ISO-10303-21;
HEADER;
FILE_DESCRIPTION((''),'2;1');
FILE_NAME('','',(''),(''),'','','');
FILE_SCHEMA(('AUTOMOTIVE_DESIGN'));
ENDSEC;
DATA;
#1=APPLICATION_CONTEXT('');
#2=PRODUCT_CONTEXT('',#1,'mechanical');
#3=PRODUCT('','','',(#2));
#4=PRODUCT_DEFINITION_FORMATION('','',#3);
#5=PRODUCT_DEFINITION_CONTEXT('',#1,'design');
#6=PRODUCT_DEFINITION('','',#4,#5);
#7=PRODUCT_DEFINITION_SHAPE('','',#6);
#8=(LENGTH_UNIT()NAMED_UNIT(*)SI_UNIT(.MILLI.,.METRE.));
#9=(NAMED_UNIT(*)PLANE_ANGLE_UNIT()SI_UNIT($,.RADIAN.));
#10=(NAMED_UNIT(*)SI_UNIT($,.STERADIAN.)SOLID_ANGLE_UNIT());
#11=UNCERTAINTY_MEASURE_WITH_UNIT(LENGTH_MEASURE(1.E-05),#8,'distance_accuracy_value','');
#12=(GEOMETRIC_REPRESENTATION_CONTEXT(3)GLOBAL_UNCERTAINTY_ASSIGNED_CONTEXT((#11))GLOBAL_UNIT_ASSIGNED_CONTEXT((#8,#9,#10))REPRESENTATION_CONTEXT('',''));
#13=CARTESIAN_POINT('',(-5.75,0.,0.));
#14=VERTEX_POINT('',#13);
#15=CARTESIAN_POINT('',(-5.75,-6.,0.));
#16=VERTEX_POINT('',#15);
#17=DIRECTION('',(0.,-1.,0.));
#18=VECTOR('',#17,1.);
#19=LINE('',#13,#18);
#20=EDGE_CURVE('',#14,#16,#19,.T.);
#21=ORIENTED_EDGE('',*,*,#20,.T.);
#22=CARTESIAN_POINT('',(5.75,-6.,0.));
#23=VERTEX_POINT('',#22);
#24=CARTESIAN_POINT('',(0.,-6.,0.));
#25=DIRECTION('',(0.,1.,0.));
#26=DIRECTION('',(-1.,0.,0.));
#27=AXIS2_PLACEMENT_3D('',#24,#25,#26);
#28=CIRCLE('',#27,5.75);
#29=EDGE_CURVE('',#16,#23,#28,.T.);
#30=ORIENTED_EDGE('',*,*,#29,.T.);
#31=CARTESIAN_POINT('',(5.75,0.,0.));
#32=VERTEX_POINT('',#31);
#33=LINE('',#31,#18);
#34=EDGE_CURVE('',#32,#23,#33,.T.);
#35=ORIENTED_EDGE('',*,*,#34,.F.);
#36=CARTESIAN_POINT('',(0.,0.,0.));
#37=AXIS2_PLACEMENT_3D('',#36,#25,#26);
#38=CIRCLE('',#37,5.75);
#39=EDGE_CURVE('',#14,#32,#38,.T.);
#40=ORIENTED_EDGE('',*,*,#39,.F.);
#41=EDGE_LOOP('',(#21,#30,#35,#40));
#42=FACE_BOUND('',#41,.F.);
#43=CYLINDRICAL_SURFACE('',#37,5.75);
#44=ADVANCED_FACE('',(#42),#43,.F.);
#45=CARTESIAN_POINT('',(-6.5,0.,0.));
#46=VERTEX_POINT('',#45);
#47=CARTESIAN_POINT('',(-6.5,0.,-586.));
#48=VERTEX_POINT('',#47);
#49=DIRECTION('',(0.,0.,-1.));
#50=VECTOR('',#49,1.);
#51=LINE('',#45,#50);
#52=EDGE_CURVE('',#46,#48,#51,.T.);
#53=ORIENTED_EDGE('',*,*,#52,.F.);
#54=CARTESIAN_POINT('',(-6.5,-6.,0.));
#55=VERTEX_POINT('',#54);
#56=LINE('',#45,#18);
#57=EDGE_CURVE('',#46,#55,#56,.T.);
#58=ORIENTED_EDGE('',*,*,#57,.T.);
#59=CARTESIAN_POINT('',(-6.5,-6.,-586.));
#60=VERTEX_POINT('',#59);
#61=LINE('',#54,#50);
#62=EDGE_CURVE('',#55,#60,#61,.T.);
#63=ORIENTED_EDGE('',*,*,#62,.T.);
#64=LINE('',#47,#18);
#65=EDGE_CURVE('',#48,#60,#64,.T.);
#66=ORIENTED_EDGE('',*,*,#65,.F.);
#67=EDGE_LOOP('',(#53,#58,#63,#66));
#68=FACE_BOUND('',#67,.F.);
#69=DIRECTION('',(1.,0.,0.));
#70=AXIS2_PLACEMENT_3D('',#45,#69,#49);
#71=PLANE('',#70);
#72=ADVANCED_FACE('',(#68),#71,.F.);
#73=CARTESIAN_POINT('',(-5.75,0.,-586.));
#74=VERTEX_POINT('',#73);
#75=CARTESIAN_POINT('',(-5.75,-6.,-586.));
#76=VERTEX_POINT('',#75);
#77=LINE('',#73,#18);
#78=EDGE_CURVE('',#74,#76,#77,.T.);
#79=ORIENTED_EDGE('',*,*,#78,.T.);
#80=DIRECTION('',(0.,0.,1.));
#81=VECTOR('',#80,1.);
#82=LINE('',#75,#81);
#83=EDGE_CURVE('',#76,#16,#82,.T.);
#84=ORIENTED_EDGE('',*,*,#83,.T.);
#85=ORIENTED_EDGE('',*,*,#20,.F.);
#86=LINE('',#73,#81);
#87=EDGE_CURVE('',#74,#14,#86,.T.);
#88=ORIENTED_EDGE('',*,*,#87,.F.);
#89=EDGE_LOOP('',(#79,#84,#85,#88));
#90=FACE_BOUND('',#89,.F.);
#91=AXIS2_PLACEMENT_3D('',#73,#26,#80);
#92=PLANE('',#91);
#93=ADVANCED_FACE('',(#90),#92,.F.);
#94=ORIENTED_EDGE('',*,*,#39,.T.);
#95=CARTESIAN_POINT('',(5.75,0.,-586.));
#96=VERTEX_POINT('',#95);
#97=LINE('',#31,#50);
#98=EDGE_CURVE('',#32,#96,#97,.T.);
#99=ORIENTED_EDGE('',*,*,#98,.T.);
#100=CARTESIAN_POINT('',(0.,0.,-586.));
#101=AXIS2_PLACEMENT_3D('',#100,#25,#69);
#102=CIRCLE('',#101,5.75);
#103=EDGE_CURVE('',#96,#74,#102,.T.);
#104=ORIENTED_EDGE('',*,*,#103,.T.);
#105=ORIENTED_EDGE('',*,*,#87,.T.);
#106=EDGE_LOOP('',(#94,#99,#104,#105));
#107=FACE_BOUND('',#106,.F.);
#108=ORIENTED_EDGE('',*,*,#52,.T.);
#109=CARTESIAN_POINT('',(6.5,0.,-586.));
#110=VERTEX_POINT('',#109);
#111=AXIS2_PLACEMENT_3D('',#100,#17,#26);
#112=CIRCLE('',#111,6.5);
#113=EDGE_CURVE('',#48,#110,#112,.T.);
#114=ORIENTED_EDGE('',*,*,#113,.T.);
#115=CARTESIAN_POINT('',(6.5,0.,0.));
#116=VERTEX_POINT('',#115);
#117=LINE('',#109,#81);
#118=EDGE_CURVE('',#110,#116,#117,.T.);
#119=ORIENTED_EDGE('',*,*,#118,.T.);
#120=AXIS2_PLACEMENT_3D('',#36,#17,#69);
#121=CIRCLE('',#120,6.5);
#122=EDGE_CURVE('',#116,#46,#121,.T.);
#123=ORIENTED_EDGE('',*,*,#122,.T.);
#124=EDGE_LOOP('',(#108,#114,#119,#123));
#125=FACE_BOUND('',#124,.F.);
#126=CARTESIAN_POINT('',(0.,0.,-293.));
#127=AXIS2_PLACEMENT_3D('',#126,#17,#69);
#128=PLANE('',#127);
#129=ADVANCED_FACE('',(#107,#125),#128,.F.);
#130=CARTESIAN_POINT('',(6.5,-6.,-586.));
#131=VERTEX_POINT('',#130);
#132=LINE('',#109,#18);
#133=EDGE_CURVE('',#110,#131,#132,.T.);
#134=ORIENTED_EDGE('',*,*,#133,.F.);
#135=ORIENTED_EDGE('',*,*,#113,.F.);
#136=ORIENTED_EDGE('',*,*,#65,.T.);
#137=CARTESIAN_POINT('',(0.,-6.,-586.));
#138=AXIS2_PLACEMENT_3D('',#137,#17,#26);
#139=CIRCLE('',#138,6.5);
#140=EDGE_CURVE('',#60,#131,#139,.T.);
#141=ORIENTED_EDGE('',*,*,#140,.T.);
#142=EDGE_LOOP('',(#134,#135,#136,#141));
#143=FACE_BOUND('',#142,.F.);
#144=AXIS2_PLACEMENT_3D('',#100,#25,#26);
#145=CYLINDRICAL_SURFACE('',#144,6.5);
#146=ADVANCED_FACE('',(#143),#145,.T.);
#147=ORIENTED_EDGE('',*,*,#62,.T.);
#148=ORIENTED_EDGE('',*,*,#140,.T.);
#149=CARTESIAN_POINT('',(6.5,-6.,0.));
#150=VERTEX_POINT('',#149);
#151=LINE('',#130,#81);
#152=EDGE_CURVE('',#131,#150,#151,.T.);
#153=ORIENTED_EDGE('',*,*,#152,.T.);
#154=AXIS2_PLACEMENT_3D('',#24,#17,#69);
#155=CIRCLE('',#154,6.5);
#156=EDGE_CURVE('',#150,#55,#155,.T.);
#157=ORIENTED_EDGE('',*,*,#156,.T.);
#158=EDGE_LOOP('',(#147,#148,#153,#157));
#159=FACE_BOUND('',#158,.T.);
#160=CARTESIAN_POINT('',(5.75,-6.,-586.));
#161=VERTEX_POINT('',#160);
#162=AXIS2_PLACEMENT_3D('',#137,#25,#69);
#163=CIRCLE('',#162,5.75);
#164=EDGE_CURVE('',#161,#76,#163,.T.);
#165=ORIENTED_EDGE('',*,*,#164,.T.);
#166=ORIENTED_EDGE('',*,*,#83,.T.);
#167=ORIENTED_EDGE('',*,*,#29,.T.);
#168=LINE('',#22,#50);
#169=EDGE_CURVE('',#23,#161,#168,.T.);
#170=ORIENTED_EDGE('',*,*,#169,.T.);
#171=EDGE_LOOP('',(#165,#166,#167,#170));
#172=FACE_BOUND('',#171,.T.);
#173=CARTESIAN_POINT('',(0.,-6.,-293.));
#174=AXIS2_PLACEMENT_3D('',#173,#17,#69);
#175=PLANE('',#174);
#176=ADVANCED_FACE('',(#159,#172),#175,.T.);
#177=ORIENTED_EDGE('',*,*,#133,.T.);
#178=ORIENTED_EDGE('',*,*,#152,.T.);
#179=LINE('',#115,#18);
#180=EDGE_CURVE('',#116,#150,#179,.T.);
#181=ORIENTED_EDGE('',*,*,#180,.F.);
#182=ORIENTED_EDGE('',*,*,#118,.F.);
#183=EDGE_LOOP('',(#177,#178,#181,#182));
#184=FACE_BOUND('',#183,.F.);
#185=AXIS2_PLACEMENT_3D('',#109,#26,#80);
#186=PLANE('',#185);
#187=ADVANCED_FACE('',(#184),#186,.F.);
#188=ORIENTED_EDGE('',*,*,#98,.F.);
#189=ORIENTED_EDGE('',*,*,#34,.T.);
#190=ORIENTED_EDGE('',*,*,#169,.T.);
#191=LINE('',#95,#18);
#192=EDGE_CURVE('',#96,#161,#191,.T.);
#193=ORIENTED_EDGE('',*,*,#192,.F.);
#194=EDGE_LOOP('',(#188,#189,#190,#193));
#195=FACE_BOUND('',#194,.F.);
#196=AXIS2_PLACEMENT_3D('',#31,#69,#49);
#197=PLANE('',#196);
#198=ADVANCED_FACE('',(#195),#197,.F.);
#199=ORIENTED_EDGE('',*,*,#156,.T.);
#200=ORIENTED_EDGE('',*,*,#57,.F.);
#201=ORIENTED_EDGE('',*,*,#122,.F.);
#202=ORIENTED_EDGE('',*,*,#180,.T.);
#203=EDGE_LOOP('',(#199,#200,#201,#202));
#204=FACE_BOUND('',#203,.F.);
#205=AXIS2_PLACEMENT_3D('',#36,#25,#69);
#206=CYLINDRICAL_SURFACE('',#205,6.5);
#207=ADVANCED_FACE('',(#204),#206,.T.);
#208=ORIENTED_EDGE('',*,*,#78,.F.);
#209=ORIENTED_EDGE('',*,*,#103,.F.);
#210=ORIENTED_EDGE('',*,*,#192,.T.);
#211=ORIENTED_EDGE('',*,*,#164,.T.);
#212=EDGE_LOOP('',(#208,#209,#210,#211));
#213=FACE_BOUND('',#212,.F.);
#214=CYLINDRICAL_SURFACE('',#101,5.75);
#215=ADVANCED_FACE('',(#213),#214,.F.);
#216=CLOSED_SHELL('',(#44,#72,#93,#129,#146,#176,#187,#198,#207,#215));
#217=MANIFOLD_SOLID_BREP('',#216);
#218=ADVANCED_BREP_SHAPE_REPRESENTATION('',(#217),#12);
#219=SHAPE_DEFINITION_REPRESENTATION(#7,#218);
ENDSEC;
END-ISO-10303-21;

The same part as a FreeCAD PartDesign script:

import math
import FreeCAD as App
import Part
import Sketcher

V = App.Vector

doc = App.newDocument("Part")
body = doc.addObject("PartDesign::Body", "Body")

# Sketch on XZ plane
sketch1 = body.newObject("Sketcher::SketchObject", "Sketch")
sketch1.AttachmentSupport = (doc.getObject("XZ_Plane"), [""])
sketch1.MapMode = "FlatFace"
sketch1.addGeometry([
    Part.LineSegment(V(6, -586, 0), V(6, 0, 0)),  # 0
    Part.ArcOfCircle(Part.Circle(V(0, 0, 0), V(0, 0, 1), 6), math.radians(0), math.radians(180)),  # 1
    Part.LineSegment(V(-6, 0, 0), V(-6, -586, 0)),  # 2
    Part.ArcOfCircle(Part.Circle(V(0, -586, 0), V(0, 0, 1), 6), math.radians(180), math.radians(360)),  # 3
    Part.LineSegment(V(-6, -586, 0), V(-6, 0, 0)),  # 4
    Part.ArcOfCircle(Part.Circle(V(0, 0, 0), V(0, 0, 1), 6), math.radians(0), math.radians(180)),  # 5
    Part.LineSegment(V(6, 0, 0), V(6, -586, 0)),  # 6
    Part.ArcOfCircle(Part.Circle(V(0, -586, 0), V(0, 0, 1), 6), math.radians(180), math.radians(360)),  # 7
], False)
sketch1.addConstraint([
    Sketcher.Constraint("Tangent", 0, 2, 1, 1),
    Sketcher.Constraint("Tangent", 1, 2, 2, 1),
    Sketcher.Constraint("Tangent", 2, 2, 3, 1),
    Sketcher.Constraint("Tangent", 3, 2, 0, 1),
    Sketcher.Constraint("Tangent", 4, 2, 5, 2),
    Sketcher.Constraint("Tangent", 5, 1, 6, 1),
    Sketcher.Constraint("Tangent", 6, 2, 7, 2),
    Sketcher.Constraint("Tangent", 7, 1, 4, 1),
    Sketcher.Constraint("Vertical", 0),
    Sketcher.Constraint("Vertical", 2),
    Sketcher.Constraint("Vertical", 4),
    Sketcher.Constraint("Vertical", 6),
    Sketcher.Constraint("Coincident", 1, 3, -1, 1),
    Sketcher.Constraint("Coincident", 5, 3, -1, 1),
    Sketcher.Constraint("Horizontal", 7, 3, 2, 2),
    Sketcher.Constraint("Radius", 1, 6.5),
    Sketcher.Constraint("DistanceY", 0, 1, 0, 2, 586.0),
    Sketcher.Constraint("Radius", 5, 5.75),
])
pad1 = body.newObject("PartDesign::Pad", "Pad")
pad1.Profile = sketch1
pad1.Length = 6

doc.recompute()
